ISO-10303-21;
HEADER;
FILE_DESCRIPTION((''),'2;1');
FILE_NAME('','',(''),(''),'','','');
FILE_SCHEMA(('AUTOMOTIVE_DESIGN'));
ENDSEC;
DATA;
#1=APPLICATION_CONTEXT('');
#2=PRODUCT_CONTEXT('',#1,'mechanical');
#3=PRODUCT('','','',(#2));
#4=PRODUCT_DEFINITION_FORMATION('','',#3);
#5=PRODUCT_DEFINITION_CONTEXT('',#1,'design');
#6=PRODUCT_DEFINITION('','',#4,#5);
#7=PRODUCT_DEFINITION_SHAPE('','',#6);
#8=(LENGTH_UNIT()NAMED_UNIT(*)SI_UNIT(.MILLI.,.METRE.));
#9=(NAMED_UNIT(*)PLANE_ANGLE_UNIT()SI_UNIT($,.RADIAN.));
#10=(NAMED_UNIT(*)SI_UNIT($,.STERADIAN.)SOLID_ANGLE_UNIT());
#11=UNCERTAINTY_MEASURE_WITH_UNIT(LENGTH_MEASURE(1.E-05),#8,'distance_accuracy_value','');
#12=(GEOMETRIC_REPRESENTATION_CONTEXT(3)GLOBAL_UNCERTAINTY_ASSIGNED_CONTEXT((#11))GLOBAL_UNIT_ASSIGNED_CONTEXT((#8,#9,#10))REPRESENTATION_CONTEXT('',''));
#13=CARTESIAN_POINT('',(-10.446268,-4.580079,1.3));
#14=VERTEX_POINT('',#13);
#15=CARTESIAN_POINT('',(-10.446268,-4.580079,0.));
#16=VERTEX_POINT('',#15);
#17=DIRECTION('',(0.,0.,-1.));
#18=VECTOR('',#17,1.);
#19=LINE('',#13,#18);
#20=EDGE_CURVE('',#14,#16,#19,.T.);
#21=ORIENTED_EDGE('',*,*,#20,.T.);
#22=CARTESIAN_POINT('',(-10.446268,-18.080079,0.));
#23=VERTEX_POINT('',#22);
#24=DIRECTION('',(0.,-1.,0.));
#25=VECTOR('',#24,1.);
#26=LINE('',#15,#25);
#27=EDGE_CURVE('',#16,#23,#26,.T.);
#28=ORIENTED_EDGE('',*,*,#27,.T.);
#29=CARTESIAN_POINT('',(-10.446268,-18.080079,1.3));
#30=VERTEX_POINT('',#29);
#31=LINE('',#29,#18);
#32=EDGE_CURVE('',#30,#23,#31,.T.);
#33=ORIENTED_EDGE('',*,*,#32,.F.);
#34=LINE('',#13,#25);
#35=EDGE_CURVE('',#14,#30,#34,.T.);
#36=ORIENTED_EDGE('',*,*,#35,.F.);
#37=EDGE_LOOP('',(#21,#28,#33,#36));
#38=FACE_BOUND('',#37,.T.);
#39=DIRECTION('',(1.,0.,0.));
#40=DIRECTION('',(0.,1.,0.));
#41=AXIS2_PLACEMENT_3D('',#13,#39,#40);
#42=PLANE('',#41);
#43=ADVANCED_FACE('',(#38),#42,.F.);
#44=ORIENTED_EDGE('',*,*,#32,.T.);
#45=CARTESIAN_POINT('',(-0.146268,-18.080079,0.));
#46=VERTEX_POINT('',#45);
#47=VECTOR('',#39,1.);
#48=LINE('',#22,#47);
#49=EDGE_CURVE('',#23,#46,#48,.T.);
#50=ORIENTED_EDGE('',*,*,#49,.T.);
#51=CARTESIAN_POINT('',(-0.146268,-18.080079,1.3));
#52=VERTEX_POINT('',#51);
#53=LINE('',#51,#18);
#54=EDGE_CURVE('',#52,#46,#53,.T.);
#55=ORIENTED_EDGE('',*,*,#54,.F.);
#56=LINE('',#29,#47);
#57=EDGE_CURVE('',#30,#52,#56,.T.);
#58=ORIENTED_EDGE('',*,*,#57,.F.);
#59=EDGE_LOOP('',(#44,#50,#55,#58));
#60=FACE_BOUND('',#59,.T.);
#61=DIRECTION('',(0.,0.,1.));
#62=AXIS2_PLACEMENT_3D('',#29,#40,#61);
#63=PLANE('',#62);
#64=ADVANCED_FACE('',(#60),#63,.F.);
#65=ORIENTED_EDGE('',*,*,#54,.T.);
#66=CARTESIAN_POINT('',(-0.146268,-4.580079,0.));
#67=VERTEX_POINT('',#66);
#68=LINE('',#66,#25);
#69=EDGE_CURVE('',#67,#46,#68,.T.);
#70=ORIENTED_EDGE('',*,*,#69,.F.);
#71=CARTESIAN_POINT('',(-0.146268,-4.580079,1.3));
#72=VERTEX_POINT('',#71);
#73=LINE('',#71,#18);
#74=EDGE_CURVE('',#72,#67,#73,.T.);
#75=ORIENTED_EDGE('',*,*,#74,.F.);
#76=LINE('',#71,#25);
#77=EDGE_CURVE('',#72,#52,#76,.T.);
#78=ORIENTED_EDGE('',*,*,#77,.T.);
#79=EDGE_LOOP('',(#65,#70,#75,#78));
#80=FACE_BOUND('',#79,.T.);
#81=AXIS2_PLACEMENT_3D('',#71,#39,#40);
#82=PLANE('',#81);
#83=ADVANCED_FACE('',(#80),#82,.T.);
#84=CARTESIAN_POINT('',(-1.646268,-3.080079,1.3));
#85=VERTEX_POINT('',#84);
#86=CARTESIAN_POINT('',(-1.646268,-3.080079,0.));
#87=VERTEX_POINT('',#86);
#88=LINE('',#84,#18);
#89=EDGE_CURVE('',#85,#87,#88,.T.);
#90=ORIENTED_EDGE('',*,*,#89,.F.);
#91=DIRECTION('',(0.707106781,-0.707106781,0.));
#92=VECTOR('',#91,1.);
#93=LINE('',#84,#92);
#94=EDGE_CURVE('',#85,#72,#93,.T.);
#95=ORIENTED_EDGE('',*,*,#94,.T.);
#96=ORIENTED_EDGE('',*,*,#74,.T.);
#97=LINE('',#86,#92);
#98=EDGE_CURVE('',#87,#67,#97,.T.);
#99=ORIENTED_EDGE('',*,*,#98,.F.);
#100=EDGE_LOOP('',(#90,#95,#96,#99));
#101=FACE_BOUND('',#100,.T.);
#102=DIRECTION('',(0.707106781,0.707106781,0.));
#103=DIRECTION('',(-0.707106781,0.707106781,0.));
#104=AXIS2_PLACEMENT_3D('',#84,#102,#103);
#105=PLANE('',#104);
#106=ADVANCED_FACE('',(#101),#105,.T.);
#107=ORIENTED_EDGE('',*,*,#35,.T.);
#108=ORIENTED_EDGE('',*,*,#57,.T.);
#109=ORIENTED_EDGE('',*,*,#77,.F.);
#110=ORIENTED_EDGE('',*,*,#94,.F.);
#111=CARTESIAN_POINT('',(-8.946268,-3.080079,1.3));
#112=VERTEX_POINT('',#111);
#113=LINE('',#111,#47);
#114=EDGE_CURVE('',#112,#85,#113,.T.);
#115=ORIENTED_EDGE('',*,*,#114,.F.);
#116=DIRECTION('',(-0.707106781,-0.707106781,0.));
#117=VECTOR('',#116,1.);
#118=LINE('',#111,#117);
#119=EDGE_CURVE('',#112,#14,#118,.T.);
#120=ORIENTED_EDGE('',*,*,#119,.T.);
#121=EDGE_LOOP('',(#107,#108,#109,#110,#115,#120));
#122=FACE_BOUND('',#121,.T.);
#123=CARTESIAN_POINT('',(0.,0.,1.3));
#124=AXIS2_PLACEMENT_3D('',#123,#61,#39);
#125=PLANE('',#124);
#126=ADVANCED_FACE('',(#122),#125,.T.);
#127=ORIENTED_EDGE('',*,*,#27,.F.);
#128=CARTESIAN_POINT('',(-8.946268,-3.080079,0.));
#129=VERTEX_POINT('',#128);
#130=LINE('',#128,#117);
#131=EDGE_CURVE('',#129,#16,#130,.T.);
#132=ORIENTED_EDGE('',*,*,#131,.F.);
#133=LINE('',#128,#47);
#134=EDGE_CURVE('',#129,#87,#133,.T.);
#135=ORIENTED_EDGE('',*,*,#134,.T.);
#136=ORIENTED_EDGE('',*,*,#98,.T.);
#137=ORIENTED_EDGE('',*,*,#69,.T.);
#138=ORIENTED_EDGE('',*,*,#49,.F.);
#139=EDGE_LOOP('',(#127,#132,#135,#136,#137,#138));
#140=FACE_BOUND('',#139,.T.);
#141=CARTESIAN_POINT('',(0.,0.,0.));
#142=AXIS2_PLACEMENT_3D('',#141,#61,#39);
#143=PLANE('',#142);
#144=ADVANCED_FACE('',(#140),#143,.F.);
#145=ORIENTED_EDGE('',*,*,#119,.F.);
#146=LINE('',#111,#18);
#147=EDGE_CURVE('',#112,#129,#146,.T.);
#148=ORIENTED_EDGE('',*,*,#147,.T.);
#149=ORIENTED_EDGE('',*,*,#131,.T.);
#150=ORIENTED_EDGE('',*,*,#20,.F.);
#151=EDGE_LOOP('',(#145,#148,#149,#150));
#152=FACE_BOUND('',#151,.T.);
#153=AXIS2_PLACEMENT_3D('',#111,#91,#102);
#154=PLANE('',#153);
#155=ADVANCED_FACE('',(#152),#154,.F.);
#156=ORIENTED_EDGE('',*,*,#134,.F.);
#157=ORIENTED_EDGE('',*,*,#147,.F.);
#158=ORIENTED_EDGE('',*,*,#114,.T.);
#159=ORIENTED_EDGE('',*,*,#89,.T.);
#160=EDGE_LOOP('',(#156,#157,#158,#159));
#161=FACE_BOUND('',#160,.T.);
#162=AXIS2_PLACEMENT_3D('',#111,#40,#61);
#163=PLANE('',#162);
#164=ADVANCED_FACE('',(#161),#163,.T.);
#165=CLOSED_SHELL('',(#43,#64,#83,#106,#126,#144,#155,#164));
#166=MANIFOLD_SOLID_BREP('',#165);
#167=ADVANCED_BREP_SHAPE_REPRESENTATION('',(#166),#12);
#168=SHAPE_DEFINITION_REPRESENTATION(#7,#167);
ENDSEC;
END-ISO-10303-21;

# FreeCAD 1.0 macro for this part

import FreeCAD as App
import Part
import Sketcher

V = App.Vector
Q = App.Units.Quantity


def add_polygon(sketch, points):
    """Adds a closed chain of lines whose ends are joined by coincident constraints."""
    first, n = sketch.GeometryCount, len(points)
    for a, b in zip(points, points[1:] + points[:1]):
        sketch.addGeometry(Part.LineSegment(App.Vector(*a, 0), App.Vector(*b, 0)), False)
    for i in range(n):
        sketch.addConstraint(Sketcher.Constraint("Coincident", first + i, 2, first + (i + 1) % n, 1))

doc = App.newDocument("Part")
body = doc.addObject("PartDesign::Body", "Body")

# Sketch on XY plane
sketch1 = doc.addObject("Sketcher::SketchObject", "Sketch")
body.addObject(sketch1)
sketch1.AttachmentSupport = (doc.XY_Plane, [""])
sketch1.MapMode = "FlatFace"
add_polygon(sketch1, [(-8.946268, -3.080079), (-10.446268, -4.580079), (-10.446268, -18.080079), (-0.146268, -18.080079), (-0.146268, -4.580079), (-1.646268, -3.080079)])  # lines 0-5
sketch1.addConstraint(Sketcher.Constraint("Vertical", 1))
sketch1.addConstraint(Sketcher.Constraint("Horizontal", 2))
sketch1.addConstraint(Sketcher.Constraint("Vertical", 3))
sketch1.addConstraint(Sketcher.Constraint("Horizontal", 5))
sketch1.addConstraint(Sketcher.Constraint("Perpendicular", 0, 4))
sketch1.addConstraint(Sketcher.Constraint("Horizontal", 0, 2, 3, 2))
sketch1.addConstraint(Sketcher.Constraint("Equal", 0, 4))
sketch1.addConstraint(Sketcher.Constraint("DistanceX", 2, 1, 2, 2, Q("10.3 mm")))
sketch1.addConstraint(Sketcher.Constraint("DistanceX", 5, 2, 5, 1, Q("7.3 mm")))
sketch1.addConstraint(Sketcher.Constraint("DistanceY", 1, 2, 1, 1, Q("13.5 mm")))
sketch1.addConstraint(Sketcher.Constraint("DistanceY", 0, 2, -1, 1, Q("4.580079 mm")))
sketch1.addConstraint(Sketcher.Constraint("DistanceX", 0, 2, -1, 1, Q("10.446268 mm")))
pad1 = doc.addObject("PartDesign::Pad", "Pad")
body.addObject(pad1)
pad1.Profile = sketch1
pad1.Length = 1.3

doc.recompute()
